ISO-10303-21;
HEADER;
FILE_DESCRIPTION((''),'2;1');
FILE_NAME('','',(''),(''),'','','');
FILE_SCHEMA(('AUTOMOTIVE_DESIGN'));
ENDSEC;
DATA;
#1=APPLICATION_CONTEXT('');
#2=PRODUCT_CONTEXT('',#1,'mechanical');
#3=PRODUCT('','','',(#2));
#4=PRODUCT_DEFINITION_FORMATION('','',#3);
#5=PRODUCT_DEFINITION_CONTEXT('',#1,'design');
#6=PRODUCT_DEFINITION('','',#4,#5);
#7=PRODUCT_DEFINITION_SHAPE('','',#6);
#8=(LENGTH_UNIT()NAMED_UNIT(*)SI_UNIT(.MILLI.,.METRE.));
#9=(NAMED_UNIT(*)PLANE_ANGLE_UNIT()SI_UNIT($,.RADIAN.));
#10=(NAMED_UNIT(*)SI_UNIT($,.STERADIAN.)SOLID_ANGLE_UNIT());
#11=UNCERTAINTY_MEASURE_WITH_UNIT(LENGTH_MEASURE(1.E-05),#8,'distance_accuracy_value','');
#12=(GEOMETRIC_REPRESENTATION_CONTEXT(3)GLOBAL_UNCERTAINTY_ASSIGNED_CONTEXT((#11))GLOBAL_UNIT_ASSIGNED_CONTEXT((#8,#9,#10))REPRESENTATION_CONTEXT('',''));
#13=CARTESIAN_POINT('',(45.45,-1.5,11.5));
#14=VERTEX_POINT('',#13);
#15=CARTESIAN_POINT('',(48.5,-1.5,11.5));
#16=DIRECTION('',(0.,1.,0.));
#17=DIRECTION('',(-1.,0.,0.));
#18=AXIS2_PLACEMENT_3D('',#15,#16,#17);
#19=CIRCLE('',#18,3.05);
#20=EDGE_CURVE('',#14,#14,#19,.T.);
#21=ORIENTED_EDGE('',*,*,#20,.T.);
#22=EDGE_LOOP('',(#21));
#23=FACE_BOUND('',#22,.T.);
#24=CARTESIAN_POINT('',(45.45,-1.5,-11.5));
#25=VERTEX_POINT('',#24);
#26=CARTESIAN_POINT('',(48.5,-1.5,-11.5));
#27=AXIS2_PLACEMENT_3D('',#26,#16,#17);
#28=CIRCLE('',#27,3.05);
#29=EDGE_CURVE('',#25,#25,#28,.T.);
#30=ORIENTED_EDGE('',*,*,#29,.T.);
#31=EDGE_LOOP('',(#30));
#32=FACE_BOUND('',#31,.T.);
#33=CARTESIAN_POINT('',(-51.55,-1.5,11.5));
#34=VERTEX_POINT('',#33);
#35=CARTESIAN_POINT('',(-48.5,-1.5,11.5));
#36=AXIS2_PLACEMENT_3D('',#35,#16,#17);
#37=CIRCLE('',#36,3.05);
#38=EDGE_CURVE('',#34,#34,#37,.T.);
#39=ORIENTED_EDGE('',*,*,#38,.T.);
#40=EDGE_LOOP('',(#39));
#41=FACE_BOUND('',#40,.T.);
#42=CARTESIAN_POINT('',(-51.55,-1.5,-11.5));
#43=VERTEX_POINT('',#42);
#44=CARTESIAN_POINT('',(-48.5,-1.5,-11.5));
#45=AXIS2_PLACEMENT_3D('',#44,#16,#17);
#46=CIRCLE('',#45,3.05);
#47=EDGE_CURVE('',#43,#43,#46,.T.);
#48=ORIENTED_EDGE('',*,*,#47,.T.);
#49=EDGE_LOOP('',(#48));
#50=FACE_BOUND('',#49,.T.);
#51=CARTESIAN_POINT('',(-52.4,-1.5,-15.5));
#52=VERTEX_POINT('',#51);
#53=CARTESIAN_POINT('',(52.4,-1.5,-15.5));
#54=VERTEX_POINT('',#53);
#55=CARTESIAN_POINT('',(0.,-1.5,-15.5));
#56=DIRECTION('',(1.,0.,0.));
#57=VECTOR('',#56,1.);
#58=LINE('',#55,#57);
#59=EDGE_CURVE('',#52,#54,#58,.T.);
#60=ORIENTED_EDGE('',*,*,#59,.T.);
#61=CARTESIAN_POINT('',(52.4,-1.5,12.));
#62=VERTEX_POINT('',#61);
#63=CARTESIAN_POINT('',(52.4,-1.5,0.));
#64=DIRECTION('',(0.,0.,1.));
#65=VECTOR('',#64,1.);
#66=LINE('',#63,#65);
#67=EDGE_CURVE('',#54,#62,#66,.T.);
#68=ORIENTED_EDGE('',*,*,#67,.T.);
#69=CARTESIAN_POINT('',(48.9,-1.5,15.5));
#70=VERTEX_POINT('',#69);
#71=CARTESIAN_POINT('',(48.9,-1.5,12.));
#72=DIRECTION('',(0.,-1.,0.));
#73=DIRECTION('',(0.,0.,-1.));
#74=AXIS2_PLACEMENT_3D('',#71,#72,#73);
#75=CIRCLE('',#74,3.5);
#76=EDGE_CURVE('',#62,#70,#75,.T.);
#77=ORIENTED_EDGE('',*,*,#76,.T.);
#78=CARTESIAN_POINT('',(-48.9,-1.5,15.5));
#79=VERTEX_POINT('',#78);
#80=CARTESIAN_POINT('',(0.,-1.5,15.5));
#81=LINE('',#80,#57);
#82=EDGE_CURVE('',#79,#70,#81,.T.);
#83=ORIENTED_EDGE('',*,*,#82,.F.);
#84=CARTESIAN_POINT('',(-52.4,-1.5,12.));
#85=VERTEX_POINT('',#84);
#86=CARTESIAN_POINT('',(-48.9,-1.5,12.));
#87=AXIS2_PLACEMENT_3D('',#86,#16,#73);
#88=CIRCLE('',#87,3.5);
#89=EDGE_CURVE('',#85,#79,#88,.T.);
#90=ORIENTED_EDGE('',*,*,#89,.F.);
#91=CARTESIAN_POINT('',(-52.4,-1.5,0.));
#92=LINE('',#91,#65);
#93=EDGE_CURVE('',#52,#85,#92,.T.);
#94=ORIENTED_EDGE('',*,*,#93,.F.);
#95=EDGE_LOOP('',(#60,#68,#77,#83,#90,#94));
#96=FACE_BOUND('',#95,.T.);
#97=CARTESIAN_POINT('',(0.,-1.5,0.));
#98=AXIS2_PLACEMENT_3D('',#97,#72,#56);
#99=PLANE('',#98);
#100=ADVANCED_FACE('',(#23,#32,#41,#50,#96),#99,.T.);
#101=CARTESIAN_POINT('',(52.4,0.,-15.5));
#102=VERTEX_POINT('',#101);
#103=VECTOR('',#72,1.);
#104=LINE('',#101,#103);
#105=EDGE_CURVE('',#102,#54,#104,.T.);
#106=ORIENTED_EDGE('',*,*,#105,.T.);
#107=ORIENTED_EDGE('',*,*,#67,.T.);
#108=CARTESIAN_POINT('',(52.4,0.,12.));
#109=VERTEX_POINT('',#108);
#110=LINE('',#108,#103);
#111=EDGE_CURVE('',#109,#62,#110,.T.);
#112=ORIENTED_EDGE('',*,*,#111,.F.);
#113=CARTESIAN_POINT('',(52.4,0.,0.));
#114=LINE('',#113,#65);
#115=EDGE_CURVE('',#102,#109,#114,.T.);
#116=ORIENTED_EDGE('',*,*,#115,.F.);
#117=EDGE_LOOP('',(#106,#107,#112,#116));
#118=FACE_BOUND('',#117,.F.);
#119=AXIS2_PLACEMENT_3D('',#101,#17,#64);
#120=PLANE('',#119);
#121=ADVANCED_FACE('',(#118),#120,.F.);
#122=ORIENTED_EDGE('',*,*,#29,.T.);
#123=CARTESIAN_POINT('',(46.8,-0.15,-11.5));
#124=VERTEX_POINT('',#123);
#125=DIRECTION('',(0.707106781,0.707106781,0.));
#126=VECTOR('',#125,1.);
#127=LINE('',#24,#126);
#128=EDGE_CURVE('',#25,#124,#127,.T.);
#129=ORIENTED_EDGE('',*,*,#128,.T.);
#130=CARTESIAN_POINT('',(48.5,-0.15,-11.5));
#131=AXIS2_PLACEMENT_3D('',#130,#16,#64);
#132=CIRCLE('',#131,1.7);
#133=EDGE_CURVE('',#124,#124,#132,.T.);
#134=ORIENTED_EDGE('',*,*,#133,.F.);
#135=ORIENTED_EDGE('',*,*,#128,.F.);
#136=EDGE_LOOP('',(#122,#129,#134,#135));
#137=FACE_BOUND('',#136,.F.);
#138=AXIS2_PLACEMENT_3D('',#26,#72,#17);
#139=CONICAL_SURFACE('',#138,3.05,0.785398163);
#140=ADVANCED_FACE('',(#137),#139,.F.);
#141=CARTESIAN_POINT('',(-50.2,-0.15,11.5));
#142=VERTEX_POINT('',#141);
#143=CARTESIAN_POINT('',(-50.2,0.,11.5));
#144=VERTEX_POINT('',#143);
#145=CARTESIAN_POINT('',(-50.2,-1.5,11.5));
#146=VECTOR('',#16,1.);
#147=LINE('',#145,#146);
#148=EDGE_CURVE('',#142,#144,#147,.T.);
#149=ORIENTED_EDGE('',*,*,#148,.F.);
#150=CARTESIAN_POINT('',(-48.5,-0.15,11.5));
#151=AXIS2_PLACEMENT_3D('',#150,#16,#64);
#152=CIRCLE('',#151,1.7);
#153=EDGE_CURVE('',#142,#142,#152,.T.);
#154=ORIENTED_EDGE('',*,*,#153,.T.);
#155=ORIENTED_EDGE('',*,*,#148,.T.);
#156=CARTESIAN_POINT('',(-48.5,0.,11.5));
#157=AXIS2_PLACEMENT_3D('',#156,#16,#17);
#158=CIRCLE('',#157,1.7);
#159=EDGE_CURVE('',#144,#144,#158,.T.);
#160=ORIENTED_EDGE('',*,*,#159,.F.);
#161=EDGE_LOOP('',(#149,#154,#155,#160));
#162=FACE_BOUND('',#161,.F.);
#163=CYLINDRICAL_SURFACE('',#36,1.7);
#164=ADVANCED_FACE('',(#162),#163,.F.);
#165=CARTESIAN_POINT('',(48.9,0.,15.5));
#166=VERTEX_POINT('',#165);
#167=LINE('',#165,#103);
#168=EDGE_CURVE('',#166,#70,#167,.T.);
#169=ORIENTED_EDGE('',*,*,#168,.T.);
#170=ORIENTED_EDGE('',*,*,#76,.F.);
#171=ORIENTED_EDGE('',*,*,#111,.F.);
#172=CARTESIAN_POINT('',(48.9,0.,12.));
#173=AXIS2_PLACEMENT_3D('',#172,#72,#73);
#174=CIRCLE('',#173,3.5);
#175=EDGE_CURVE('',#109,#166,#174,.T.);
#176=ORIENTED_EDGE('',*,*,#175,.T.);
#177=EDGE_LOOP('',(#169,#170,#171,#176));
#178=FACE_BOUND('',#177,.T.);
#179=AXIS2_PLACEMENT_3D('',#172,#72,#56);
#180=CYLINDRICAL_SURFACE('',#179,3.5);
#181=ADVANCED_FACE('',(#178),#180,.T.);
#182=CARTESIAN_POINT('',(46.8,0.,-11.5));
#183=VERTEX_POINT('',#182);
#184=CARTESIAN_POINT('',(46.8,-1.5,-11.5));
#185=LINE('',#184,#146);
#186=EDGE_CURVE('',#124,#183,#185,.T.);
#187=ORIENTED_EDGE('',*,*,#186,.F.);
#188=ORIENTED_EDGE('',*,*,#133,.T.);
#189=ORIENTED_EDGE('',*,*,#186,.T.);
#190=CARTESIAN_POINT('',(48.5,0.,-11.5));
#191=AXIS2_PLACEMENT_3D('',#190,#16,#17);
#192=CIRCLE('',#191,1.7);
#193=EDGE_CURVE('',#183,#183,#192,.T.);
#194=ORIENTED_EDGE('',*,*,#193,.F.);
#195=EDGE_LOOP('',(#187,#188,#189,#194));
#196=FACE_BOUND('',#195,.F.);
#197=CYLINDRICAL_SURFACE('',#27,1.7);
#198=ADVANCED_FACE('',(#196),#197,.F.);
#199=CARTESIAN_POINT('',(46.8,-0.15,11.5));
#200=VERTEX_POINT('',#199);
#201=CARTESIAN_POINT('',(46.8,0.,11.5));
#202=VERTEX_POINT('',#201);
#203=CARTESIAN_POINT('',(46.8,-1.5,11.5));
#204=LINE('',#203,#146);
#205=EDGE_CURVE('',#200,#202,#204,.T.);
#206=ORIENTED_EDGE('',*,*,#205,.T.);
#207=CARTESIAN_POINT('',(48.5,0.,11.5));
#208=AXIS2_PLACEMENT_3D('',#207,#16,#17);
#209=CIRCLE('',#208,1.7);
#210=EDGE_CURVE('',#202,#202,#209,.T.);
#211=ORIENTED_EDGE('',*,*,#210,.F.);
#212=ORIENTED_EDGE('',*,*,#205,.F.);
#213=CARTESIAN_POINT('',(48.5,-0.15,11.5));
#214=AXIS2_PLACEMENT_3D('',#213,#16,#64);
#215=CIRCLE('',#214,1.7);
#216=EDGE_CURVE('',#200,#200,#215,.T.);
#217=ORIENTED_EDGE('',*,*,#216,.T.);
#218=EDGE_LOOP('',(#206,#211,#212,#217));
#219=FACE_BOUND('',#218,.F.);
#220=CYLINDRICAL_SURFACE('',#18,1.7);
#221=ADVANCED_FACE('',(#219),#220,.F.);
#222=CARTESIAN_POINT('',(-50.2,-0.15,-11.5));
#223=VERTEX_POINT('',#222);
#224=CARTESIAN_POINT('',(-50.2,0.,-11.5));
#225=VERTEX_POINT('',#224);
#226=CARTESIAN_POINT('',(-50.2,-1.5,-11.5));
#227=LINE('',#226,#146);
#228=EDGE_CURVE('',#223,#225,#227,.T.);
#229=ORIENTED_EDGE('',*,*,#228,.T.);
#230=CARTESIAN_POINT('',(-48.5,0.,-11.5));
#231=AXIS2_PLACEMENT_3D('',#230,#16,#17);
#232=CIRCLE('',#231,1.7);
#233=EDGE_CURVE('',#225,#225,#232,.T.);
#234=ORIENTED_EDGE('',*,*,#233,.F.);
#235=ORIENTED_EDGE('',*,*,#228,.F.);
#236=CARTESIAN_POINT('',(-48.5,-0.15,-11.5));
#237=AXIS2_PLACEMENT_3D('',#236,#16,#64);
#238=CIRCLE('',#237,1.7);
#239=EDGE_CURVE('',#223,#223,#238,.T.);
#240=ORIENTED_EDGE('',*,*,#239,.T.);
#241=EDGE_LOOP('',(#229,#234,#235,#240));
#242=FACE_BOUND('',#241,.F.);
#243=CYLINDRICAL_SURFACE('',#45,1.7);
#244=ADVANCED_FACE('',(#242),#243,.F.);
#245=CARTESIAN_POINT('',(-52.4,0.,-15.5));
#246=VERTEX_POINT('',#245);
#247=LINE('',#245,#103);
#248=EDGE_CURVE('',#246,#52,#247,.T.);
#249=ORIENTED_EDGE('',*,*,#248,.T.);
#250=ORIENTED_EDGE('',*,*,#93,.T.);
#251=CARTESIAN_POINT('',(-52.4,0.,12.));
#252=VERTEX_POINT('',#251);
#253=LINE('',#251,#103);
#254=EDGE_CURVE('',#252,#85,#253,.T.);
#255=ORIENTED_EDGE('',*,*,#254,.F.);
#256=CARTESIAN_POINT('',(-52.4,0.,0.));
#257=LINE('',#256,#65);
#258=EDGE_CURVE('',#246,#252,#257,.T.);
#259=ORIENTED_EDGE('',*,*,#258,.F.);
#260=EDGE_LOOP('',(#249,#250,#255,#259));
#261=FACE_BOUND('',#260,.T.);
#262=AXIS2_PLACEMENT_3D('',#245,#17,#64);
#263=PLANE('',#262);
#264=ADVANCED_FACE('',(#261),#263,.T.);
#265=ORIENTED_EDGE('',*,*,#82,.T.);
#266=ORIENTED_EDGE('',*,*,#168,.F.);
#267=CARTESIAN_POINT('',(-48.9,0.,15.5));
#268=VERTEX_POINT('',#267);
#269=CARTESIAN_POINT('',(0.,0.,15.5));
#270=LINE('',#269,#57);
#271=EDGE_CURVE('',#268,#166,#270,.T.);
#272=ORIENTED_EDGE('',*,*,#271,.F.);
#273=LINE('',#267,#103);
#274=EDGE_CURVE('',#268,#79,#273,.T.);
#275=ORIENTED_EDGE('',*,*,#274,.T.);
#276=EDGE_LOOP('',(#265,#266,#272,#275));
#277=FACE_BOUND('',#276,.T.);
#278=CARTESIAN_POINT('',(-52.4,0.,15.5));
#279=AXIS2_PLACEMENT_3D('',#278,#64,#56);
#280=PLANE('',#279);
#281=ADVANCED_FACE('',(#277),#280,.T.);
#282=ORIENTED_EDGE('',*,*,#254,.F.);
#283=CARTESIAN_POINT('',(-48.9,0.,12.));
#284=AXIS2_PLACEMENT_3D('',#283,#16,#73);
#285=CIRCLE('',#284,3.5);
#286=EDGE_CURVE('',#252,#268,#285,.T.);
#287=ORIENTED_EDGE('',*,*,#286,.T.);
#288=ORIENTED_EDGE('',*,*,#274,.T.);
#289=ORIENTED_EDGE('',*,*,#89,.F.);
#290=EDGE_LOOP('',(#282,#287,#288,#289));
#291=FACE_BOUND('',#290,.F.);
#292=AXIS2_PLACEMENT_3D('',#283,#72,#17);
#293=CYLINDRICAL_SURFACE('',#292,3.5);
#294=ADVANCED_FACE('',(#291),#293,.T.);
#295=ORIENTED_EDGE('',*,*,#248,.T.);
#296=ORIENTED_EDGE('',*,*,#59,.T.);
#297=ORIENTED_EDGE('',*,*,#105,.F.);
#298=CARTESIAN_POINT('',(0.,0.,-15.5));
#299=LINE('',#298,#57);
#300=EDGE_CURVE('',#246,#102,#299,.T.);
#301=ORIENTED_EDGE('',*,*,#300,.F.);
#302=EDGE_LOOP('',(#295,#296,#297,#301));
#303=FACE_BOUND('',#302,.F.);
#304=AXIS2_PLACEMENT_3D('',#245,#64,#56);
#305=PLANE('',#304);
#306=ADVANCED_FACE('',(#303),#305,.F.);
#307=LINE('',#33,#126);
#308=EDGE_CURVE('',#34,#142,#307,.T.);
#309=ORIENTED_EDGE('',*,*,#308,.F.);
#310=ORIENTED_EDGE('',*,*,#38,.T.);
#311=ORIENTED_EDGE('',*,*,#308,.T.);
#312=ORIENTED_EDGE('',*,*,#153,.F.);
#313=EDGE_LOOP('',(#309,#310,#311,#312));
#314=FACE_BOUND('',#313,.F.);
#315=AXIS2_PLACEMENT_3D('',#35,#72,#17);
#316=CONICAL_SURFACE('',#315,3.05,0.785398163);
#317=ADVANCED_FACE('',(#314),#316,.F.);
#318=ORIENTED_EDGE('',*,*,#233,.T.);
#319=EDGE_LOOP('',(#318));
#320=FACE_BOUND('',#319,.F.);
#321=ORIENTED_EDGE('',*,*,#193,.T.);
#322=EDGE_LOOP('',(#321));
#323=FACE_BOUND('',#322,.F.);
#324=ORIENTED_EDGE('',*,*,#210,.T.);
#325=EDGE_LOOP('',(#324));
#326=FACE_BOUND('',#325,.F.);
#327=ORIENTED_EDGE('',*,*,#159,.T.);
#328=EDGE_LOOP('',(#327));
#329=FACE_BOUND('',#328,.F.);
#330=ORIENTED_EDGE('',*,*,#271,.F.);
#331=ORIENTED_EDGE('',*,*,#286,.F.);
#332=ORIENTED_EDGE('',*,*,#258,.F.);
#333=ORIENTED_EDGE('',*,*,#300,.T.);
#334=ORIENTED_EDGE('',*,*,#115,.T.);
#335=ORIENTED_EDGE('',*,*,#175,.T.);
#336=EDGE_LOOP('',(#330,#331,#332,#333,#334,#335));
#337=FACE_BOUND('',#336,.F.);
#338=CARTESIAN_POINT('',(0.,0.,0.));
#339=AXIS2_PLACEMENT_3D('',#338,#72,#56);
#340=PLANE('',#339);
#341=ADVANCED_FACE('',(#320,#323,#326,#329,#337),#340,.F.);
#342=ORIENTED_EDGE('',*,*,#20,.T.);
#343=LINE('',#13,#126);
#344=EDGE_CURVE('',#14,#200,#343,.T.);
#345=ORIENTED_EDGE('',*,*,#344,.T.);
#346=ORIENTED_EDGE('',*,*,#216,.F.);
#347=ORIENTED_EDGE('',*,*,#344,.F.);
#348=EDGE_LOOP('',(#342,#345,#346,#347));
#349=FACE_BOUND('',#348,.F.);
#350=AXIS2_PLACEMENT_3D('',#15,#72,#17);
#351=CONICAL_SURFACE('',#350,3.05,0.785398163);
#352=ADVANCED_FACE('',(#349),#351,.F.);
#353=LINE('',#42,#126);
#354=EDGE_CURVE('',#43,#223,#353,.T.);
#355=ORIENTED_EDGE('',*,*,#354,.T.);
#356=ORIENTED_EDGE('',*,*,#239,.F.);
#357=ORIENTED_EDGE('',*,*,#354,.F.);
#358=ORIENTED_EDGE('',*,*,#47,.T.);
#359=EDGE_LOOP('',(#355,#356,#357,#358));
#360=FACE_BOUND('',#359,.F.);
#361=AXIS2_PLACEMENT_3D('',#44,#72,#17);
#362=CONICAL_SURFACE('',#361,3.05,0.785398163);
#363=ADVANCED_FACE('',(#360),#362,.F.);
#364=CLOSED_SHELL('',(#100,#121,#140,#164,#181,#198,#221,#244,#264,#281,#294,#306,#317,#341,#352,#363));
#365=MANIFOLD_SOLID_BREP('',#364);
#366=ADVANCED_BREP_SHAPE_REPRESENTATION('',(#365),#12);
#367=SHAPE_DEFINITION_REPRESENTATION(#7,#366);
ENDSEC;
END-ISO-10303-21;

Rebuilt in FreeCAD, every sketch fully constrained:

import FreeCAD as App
import Part
import Sketcher

V = App.Vector


def edges_at(feature, points):
    """Names of the edges that pass closest to the given points."""
    edges = feature.Shape.Edges
    near = lambda p: min(range(len(edges)), key=lambda i: edges[i].distToShape(Part.Vertex(*p))[0])
    return sorted({f"Edge{near(p) + 1}" for p in points})

doc = App.newDocument("Part")
params = doc.addObject("Spreadsheet::Sheet", "Params")
for row, (alias, value) in enumerate([
    ("sketch1_height", "31 mm"),
    ("sketch1_width", "104.8 mm"),
    ("pad1_length", "1.5 mm"),
    ("sketch2_diameter", "3.4 mm"),
    ("hole_diameter", "3.4 mm"),
    ("hole_depth", "25 mm"),
    ("hole_csink_diameter", "6.1 mm"),
    ("fillet_radius", "3.5 mm"),
], start=1):
    params.set(f"A{row}", alias)
    params.set(f"B{row}", "=" + value)
    params.setAlias(f"B{row}", alias)

body = doc.addObject("PartDesign::Body", "Body")

# Sketch on XZ plane
sketch1 = body.newObject("Sketcher::SketchObject", "Sketch")
sketch1.AttachmentSupport = (doc.getObject("XZ_Plane"), [""])
sketch1.MapMode = "FlatFace"
sketch1.addGeometry([
    Part.LineSegment(V(-52, 16, 0), V(-52, -16, 0)),
    Part.LineSegment(V(-52, -16, 0), V(52, -16, 0)),
    Part.LineSegment(V(52, -16, 0), V(52, 16, 0)),
    Part.LineSegment(V(52, 16, 0), V(-52, 16, 0)),
], False)
sketch1.addConstraint([
    Sketcher.Constraint("Coincident", 0, 2, 1, 1),
    Sketcher.Constraint("Coincident", 1, 2, 2, 1),
    Sketcher.Constraint("Coincident", 2, 2, 3, 1),
    Sketcher.Constraint("Coincident", 3, 2, 0, 1),
    Sketcher.Constraint("Vertical", 0),
    Sketcher.Constraint("Horizontal", 1),
    Sketcher.Constraint("Vertical", 2),
    Sketcher.Constraint("Horizontal", 3),
    Sketcher.Constraint("Symmetric", 0, 2, 2, 2, -1, 1),
    Sketcher.Constraint("DistanceY", 0, 2, 0, 1, 31.0),
    Sketcher.Constraint("DistanceX", 1, 1, 1, 2, 104.8),
])
sketch1.setExpression("Constraints[9]", "Params.sketch1_height")
sketch1.setExpression("Constraints[10]", "Params.sketch1_width")
pad1 = body.newObject("PartDesign::Pad", "Pad")
pad1.Profile = sketch1
pad1.setExpression("Length", "Params.pad1_length")

# Sketch on XZ plane
sketch2 = body.newObject("Sketcher::SketchObject", "Sketch001")
sketch2.AttachmentSupport = (doc.getObject("XZ_Plane"), [""])
sketch2.MapMode = "FlatFace"
sketch2.AttachmentOffset = App.Placement(V(0, 0, 1.5), App.Rotation())
sketch2.addGeometry([
    Part.Circle(V(-48.5, 11.5, 0), V(0, 0, 1), 1.7),
    Part.Circle(V(-48.5, -11.5, 0), V(0, 0, 1), 1.7),
    Part.Circle(V(48.5, -11.5, 0), V(0, 0, 1), 1.7),
    Part.Circle(V(48.5, 11.5, 0), V(0, 0, 1), 1.7),
], False)
sketch2.addConstraint([
    Sketcher.Constraint("Equal", 0, 1),
    Sketcher.Constraint("Equal", 1, 2),
    Sketcher.Constraint("Equal", 2, 3),
    Sketcher.Constraint("Symmetric", 0, 3, 2, 3, -1, 1),
    Sketcher.Constraint("Symmetric", 1, 3, 3, 3, -1, 1),
    Sketcher.Constraint("Symmetric", 1, 3, 2, 3, -2),
    Sketcher.Constraint("Diameter", 0, 3.4),
    Sketcher.Constraint("DistanceY", 1, 3, 0, 3, 23.0),
    Sketcher.Constraint("DistanceX", 1, 3, 2, 3, 97.0),
])
sketch2.setExpression("Constraints[6]", "Params.sketch2_diameter")
doc.recompute()
hole = body.newObject("PartDesign::Hole", "Hole")
hole.Profile = sketch2
hole.ThreadType = "None"
hole.setExpression("Diameter", "Params.hole_diameter")
hole.DepthType = "Dimension"
hole.setExpression("Depth", "Params.hole_depth")
hole.DrillPoint = "Flat"
hole.HoleCutType = "Countersink"
hole.setExpression("HoleCutDiameter", "Params.hole_csink_diameter")
hole.HoleCutCountersinkAngle = 90
doc.recompute()

fillet = body.newObject("PartDesign::Fillet", "Fillet")
fillet.Base = (hole, edges_at(hole, [(-52.4, -0.75, 15.5), (52.4, -0.75, 15.5)]))
fillet.setExpression("Radius", "Params.fillet_radius")

doc.recompute()
